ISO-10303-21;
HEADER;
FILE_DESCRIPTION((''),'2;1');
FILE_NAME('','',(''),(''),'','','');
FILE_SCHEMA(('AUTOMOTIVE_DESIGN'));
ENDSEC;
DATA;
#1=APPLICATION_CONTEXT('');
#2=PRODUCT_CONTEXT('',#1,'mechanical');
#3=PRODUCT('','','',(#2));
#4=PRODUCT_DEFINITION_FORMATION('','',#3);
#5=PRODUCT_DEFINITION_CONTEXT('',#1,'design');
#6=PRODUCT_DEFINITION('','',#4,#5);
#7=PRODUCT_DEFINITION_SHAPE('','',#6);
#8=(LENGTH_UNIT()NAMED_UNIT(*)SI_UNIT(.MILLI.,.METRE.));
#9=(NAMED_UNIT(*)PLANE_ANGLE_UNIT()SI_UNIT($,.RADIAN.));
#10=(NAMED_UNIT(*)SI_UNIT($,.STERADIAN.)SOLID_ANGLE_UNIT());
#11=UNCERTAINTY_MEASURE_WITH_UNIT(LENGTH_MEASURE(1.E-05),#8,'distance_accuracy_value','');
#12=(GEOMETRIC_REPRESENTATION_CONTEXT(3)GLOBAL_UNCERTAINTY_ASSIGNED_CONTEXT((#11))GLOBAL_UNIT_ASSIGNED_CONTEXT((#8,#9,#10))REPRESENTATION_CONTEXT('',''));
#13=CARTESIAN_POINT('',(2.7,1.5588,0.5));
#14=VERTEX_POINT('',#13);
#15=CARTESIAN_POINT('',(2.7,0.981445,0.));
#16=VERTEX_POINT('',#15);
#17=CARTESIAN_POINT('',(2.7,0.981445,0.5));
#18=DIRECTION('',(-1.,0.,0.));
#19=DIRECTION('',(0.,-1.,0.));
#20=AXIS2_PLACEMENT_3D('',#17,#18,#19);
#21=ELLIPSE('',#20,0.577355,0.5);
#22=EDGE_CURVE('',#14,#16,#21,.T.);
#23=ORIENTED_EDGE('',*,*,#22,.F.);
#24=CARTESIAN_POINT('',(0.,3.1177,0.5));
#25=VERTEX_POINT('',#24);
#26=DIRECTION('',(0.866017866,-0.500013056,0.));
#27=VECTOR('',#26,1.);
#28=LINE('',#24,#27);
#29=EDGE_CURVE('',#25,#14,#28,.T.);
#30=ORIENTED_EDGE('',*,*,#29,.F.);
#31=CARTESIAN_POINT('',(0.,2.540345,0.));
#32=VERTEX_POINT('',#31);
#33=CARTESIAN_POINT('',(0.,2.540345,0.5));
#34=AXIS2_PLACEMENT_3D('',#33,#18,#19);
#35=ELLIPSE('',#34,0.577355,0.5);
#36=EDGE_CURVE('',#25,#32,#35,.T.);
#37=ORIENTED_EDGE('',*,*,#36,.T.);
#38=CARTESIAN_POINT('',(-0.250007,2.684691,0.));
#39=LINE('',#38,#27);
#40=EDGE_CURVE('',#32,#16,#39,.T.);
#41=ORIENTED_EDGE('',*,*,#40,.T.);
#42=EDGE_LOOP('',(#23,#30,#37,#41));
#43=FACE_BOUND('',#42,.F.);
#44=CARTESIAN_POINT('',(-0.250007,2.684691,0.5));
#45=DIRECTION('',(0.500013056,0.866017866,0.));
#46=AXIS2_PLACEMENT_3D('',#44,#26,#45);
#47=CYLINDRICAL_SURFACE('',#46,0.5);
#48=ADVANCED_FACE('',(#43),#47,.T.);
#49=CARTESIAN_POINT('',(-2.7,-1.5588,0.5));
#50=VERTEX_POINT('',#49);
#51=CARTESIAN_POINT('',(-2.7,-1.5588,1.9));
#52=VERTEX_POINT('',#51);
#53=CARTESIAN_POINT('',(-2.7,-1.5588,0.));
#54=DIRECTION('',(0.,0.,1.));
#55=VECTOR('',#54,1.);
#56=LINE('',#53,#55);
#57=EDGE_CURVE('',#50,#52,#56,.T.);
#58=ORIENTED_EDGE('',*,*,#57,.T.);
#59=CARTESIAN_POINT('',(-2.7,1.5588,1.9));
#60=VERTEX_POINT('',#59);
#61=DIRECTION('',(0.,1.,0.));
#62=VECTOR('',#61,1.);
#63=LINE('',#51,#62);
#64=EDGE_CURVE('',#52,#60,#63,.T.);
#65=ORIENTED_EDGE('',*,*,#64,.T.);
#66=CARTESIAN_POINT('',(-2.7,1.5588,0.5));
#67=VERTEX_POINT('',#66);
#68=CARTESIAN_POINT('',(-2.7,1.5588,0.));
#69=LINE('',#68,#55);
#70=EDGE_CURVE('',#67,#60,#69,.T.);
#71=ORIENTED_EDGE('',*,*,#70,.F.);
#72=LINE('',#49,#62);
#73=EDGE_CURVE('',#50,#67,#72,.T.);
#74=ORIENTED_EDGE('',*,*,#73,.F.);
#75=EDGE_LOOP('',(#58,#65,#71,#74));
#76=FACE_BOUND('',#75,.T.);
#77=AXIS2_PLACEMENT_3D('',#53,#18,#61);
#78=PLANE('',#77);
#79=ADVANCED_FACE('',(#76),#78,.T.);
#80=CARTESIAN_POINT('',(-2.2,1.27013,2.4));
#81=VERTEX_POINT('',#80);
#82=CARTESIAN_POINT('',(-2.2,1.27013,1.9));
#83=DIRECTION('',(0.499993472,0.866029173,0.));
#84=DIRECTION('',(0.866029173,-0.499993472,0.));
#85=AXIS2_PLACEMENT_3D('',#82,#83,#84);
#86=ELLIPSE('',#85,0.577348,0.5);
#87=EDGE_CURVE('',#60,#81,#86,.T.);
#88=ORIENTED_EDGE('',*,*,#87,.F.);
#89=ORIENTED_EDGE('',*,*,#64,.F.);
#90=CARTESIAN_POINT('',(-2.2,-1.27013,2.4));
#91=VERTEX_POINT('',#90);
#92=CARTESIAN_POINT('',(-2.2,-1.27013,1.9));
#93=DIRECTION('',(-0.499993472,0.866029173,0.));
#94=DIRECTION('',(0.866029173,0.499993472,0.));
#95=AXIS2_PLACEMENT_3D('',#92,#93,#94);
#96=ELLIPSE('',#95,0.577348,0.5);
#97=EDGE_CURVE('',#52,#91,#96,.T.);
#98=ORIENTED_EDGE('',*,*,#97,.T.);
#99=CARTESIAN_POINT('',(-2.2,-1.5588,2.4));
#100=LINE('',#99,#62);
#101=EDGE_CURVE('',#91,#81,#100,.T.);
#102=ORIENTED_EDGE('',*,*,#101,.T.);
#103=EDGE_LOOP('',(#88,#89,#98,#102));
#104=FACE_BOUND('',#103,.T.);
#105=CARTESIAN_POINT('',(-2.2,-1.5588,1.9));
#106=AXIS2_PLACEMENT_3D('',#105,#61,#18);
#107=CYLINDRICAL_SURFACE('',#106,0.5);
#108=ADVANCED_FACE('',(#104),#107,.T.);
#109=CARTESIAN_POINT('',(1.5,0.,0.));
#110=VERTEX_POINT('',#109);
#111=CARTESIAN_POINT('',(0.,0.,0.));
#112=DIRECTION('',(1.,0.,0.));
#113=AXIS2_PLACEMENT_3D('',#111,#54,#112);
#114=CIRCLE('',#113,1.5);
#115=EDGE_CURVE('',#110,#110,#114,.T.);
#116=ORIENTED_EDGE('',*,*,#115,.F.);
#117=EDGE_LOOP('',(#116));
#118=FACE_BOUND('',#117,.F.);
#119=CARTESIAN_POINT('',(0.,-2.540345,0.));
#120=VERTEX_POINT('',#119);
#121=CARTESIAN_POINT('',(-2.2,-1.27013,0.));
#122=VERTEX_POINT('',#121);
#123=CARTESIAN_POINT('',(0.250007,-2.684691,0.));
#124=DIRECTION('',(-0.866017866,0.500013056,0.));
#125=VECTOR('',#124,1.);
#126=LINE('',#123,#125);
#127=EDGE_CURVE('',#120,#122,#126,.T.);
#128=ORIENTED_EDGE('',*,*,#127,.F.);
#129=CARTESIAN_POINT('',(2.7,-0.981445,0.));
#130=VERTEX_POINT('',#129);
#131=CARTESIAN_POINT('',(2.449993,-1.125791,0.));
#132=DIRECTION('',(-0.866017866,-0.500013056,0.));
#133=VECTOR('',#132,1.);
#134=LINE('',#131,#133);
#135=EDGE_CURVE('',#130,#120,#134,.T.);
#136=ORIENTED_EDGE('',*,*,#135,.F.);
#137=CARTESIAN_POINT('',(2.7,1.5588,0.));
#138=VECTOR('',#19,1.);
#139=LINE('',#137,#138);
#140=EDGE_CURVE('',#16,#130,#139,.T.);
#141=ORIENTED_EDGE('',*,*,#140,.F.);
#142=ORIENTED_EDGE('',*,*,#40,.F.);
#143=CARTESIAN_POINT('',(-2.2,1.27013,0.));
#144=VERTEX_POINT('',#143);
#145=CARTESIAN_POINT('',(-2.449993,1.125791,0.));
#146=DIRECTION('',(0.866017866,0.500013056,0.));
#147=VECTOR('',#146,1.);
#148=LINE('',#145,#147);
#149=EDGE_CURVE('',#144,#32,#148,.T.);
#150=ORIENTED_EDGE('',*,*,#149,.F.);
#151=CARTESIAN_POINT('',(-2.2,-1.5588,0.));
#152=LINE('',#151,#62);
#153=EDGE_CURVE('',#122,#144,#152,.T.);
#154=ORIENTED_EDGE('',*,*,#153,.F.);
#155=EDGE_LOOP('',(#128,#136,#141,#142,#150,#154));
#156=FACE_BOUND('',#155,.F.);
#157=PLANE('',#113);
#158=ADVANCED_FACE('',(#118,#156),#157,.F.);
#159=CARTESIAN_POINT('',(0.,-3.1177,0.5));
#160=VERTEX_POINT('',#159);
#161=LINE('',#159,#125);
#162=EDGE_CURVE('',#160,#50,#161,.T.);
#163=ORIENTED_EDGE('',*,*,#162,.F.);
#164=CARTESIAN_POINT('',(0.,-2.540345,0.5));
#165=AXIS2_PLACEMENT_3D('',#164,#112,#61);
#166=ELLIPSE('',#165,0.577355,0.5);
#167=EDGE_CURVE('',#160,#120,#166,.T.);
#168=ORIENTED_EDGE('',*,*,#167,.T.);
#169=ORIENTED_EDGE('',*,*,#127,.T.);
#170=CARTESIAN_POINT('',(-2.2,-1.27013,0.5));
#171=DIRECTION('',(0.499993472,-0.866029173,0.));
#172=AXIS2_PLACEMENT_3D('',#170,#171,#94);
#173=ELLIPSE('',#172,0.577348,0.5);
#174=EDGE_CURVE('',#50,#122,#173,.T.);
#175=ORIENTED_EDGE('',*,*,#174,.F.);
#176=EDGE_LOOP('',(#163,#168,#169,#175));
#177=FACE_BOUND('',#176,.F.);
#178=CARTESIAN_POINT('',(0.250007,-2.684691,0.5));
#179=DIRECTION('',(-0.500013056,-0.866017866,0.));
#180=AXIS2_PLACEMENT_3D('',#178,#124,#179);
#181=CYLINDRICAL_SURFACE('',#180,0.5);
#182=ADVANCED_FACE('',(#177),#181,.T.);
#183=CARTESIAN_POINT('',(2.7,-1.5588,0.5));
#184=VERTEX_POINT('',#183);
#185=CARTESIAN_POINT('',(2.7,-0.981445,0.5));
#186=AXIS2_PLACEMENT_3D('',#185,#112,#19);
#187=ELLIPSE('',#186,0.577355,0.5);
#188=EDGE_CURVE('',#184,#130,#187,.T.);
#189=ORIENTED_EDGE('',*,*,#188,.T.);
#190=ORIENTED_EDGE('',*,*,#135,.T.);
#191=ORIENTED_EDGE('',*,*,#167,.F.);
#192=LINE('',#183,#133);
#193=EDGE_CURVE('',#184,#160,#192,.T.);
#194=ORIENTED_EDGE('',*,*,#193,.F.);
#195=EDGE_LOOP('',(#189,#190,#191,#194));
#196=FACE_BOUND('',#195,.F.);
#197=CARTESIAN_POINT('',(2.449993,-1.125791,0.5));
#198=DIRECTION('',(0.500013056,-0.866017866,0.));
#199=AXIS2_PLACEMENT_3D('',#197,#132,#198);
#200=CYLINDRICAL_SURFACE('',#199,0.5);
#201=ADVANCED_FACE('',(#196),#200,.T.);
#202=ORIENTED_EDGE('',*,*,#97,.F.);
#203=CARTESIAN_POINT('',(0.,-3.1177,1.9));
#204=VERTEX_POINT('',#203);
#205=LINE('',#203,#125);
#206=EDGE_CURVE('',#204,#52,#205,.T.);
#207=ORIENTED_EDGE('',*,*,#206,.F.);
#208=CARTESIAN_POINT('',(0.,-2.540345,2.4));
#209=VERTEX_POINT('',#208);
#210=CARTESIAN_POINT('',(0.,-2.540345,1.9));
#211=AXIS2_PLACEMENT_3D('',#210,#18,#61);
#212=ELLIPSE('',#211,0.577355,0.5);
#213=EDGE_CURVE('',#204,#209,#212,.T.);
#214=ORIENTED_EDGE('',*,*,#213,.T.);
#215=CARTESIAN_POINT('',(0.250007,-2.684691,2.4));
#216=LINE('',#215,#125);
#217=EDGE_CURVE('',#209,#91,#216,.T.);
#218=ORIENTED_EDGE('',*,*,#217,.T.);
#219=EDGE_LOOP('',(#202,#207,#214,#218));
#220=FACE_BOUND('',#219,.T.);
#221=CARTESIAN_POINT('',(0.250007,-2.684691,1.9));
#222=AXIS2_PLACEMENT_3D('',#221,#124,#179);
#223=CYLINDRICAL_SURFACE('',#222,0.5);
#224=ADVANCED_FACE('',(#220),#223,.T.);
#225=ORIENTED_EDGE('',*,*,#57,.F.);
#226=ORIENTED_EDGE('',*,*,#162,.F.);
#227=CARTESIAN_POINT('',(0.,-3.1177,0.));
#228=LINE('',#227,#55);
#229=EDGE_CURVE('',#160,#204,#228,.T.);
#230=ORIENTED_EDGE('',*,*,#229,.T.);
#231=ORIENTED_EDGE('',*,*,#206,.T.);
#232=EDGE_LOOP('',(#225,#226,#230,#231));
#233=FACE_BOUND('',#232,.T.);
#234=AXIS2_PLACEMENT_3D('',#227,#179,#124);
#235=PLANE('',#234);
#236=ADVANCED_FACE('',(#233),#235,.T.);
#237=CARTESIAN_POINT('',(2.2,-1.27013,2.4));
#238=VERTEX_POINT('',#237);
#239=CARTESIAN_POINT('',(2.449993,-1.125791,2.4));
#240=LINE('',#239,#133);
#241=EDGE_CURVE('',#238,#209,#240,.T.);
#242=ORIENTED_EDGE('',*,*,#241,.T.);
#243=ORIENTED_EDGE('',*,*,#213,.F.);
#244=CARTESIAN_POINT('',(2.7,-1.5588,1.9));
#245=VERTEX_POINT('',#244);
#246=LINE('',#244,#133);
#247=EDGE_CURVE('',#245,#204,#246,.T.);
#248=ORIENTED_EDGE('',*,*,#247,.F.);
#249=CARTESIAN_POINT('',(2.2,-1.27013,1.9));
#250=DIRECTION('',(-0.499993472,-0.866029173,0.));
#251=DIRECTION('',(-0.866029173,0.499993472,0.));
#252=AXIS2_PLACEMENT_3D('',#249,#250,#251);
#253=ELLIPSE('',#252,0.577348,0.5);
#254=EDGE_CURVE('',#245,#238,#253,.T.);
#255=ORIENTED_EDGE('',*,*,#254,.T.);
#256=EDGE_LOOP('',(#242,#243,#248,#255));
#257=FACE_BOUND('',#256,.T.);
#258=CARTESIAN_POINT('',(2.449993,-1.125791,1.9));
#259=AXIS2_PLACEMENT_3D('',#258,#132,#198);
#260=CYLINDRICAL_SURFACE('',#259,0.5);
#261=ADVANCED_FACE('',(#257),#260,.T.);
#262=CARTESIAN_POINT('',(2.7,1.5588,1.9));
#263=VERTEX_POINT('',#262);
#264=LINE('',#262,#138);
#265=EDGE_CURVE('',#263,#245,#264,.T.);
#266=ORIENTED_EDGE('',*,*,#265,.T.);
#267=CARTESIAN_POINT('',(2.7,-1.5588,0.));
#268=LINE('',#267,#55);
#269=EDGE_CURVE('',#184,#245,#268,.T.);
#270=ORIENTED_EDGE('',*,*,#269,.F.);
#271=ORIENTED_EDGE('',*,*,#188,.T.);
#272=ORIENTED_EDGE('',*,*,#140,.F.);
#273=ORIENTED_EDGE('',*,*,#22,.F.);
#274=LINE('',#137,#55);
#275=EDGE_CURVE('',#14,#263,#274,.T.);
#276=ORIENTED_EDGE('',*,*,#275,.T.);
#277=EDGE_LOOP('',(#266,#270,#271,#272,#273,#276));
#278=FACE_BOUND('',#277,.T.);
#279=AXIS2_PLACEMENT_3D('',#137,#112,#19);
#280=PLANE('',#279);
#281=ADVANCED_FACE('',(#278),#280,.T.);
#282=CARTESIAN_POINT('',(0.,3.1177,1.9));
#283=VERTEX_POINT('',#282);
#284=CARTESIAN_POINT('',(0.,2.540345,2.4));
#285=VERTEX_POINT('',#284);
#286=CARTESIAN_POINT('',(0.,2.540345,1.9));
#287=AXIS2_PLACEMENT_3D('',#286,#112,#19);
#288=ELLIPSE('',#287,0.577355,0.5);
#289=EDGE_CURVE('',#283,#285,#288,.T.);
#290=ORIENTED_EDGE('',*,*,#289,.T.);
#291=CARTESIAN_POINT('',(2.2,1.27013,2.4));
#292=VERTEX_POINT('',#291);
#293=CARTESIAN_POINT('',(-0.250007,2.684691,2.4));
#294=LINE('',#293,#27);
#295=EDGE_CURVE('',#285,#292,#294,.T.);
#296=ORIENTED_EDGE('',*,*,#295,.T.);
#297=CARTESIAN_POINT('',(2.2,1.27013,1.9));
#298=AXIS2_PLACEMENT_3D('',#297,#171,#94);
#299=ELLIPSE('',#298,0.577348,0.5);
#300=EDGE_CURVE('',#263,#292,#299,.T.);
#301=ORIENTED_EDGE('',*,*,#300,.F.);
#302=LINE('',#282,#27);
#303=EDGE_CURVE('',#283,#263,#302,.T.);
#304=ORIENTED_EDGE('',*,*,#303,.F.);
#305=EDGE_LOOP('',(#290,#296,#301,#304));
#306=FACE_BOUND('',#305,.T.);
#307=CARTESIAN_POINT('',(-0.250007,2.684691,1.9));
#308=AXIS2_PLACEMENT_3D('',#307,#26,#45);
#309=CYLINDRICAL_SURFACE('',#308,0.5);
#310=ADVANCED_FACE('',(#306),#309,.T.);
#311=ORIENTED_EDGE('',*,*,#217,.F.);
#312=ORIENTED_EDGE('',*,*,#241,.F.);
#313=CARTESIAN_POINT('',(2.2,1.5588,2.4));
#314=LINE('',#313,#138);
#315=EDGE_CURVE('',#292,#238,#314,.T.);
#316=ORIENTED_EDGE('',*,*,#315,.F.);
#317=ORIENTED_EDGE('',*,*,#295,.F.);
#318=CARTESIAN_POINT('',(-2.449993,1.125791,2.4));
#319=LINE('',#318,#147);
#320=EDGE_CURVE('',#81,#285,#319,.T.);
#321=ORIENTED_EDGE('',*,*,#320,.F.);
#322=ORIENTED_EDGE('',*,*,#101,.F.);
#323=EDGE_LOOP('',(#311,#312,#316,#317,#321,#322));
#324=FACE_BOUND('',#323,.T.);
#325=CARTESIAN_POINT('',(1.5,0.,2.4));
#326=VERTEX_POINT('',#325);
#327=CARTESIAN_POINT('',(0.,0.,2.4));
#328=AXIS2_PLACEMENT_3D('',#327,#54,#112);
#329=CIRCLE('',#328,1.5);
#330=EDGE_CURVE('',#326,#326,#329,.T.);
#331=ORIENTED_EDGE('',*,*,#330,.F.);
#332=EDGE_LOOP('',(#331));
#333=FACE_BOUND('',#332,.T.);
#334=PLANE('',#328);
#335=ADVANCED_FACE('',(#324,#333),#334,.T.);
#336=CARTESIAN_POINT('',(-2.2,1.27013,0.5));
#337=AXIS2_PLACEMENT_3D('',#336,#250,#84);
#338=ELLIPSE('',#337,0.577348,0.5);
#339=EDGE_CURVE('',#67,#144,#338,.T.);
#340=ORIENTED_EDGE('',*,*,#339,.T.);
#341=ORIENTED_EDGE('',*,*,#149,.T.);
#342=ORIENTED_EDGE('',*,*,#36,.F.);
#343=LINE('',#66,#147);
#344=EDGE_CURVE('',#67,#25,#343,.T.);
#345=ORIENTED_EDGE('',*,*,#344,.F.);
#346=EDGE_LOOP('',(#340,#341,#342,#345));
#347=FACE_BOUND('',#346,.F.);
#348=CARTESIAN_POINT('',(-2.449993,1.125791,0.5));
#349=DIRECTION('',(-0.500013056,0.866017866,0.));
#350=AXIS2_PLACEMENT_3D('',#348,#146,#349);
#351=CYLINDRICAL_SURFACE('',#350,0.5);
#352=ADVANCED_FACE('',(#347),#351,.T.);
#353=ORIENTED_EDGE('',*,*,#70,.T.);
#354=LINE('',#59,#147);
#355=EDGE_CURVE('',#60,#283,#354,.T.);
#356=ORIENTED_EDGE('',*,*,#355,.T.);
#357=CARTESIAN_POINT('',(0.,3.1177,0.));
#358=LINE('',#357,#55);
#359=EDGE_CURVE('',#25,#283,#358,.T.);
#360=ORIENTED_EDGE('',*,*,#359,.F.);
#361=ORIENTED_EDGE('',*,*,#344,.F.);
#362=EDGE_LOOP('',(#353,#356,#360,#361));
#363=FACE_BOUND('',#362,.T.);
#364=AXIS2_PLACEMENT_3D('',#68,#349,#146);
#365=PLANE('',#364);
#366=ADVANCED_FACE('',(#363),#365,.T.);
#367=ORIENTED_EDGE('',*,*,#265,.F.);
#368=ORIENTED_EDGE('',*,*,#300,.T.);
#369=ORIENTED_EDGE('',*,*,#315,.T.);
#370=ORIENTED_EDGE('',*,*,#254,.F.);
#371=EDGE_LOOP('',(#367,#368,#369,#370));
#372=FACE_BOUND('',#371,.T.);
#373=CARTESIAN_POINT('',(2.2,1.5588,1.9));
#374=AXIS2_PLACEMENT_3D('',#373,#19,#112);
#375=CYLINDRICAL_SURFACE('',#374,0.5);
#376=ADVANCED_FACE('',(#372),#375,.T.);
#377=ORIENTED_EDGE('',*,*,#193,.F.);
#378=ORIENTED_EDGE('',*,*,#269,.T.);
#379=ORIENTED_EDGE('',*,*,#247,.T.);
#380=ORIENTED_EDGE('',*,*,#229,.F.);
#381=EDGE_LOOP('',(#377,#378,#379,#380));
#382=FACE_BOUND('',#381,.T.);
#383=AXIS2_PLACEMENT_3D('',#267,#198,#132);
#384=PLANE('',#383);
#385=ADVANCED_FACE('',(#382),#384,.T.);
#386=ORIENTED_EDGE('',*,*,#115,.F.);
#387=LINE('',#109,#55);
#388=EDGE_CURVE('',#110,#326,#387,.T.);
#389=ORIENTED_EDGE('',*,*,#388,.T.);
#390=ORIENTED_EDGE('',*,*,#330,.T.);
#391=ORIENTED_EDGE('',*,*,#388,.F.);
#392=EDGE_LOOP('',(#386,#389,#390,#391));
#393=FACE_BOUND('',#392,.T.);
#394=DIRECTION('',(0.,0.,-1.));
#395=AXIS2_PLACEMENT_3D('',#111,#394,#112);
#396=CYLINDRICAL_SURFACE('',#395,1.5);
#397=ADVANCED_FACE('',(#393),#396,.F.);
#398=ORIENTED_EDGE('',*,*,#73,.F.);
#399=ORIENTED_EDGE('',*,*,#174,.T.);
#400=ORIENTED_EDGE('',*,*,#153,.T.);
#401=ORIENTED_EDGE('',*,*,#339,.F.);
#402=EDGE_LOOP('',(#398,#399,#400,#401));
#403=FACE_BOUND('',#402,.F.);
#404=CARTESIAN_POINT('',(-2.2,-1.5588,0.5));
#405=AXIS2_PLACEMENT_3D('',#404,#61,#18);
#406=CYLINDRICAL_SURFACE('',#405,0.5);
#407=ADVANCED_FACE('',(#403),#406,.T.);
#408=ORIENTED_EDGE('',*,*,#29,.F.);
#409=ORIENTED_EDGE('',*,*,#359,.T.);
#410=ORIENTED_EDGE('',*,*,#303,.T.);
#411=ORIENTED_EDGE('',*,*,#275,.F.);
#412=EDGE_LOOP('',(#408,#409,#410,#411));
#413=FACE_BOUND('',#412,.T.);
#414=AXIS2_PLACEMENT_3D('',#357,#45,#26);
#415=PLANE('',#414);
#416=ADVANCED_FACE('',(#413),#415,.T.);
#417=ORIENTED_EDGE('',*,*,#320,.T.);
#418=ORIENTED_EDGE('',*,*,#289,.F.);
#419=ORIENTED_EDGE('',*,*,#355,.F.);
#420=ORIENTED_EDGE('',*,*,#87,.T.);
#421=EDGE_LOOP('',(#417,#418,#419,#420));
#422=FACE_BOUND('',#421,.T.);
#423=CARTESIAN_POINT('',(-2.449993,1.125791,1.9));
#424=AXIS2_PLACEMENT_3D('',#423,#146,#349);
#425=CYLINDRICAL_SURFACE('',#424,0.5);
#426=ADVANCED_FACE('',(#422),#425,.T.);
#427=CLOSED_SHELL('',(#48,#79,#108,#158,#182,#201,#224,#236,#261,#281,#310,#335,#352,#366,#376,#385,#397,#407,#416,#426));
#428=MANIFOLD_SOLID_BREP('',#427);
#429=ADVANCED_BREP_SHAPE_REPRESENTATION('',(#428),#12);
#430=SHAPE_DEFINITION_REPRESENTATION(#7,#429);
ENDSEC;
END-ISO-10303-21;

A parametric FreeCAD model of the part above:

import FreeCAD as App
import Part
import Sketcher
Q = App.Units.Quantity


def edges_at(feature, points):
    """Names of the edges that pass closest to the given points."""
    edges = feature.Shape.Edges
    near = lambda p: min(range(len(edges)), key=lambda i: edges[i].distToShape(Part.Vertex(*p))[0])
    return sorted({f"Edge{near(p) + 1}" for p in points})


def add_polygon(sketch, points):
    """Adds a closed chain of lines whose ends are joined by coincident constraints."""
    first, n = sketch.GeometryCount, len(points)
    for a, b in zip(points, points[1:] + points[:1]):
        sketch.addGeometry(Part.LineSegment(App.Vector(*a, 0), App.Vector(*b, 0)), False)
    for i in range(n):
        sketch.addConstraint(Sketcher.Constraint("Coincident", first + i, 2, first + (i + 1) % n, 1))

doc = App.newDocument("Part")
body = doc.addObject("PartDesign::Body", "Body")

# Sketch on XY plane
sketch1 = body.newObject("Sketcher::SketchObject", "Sketch")
sketch1.AttachmentSupport = (doc.getObject("XY_Plane"), [""])
sketch1.MapMode = "FlatFace"
add_polygon(sketch1, [(0, -3.1), (2.7, -1.6), (2.7, 1.6), (0, 3.1), (-2.7, 1.6), (-2.7, -1.6)])  # lines 0-5
sketch1.addGeometry(Part.Circle(App.Vector(0, 0, 0), App.Vector(0, 0, 1), 1.5), False)  # 6
sketch1.addConstraint([
    Sketcher.Constraint("Vertical", 1),
    Sketcher.Constraint("Vertical", 4),
    Sketcher.Constraint("Coincident", 6, 3, -1, 1),
    Sketcher.Constraint("Symmetric", 0, 2, 3, 2, -1, 1),
    Sketcher.Constraint("Symmetric", 2, 2, 5, 2, -1, 1),
    Sketcher.Constraint("PointOnObject", 2, 2, -2),
    Sketcher.Constraint("Parallel", 2, 5),
    Sketcher.Constraint("Horizontal", 1, 2, 3, 2),
    Sketcher.Constraint("Diameter", 6, Q("3 mm")),
    Sketcher.Constraint("DistanceX", 3, 2, 1, 2, Q("5.4 mm")),
    Sketcher.Constraint("Angle", 0, Q("30.0009 deg")),
    Sketcher.Constraint("DistanceY", 1, 1, 1, 2, Q("3.1176 mm")),
])
pad1 = body.newObject("PartDesign::Pad", "Pad")
pad1.Profile = sketch1
pad1.Length = 2.4
doc.recompute()

fillet = body.newObject("PartDesign::Fillet", "Fillet")
fillet.Base = (pad1, edges_at(pad1, [
    (1.35, 2.338, 2.4),
    (-1.35, 2.338, 2.4),
    (-2.7, 0, 2.4),
    (-1.35, -2.338, 2.4),
    (1.35, -2.338, 2.4),
    (2.7, 0, 2.4),
    (1.35, 2.338, 0),
    (-1.35, 2.338, 0),
    (-2.7, 0, 0),
    (-1.35, -2.338, 0),
    (1.35, -2.338, 0),
]))
fillet.Radius = 0.5

doc.recompute()
